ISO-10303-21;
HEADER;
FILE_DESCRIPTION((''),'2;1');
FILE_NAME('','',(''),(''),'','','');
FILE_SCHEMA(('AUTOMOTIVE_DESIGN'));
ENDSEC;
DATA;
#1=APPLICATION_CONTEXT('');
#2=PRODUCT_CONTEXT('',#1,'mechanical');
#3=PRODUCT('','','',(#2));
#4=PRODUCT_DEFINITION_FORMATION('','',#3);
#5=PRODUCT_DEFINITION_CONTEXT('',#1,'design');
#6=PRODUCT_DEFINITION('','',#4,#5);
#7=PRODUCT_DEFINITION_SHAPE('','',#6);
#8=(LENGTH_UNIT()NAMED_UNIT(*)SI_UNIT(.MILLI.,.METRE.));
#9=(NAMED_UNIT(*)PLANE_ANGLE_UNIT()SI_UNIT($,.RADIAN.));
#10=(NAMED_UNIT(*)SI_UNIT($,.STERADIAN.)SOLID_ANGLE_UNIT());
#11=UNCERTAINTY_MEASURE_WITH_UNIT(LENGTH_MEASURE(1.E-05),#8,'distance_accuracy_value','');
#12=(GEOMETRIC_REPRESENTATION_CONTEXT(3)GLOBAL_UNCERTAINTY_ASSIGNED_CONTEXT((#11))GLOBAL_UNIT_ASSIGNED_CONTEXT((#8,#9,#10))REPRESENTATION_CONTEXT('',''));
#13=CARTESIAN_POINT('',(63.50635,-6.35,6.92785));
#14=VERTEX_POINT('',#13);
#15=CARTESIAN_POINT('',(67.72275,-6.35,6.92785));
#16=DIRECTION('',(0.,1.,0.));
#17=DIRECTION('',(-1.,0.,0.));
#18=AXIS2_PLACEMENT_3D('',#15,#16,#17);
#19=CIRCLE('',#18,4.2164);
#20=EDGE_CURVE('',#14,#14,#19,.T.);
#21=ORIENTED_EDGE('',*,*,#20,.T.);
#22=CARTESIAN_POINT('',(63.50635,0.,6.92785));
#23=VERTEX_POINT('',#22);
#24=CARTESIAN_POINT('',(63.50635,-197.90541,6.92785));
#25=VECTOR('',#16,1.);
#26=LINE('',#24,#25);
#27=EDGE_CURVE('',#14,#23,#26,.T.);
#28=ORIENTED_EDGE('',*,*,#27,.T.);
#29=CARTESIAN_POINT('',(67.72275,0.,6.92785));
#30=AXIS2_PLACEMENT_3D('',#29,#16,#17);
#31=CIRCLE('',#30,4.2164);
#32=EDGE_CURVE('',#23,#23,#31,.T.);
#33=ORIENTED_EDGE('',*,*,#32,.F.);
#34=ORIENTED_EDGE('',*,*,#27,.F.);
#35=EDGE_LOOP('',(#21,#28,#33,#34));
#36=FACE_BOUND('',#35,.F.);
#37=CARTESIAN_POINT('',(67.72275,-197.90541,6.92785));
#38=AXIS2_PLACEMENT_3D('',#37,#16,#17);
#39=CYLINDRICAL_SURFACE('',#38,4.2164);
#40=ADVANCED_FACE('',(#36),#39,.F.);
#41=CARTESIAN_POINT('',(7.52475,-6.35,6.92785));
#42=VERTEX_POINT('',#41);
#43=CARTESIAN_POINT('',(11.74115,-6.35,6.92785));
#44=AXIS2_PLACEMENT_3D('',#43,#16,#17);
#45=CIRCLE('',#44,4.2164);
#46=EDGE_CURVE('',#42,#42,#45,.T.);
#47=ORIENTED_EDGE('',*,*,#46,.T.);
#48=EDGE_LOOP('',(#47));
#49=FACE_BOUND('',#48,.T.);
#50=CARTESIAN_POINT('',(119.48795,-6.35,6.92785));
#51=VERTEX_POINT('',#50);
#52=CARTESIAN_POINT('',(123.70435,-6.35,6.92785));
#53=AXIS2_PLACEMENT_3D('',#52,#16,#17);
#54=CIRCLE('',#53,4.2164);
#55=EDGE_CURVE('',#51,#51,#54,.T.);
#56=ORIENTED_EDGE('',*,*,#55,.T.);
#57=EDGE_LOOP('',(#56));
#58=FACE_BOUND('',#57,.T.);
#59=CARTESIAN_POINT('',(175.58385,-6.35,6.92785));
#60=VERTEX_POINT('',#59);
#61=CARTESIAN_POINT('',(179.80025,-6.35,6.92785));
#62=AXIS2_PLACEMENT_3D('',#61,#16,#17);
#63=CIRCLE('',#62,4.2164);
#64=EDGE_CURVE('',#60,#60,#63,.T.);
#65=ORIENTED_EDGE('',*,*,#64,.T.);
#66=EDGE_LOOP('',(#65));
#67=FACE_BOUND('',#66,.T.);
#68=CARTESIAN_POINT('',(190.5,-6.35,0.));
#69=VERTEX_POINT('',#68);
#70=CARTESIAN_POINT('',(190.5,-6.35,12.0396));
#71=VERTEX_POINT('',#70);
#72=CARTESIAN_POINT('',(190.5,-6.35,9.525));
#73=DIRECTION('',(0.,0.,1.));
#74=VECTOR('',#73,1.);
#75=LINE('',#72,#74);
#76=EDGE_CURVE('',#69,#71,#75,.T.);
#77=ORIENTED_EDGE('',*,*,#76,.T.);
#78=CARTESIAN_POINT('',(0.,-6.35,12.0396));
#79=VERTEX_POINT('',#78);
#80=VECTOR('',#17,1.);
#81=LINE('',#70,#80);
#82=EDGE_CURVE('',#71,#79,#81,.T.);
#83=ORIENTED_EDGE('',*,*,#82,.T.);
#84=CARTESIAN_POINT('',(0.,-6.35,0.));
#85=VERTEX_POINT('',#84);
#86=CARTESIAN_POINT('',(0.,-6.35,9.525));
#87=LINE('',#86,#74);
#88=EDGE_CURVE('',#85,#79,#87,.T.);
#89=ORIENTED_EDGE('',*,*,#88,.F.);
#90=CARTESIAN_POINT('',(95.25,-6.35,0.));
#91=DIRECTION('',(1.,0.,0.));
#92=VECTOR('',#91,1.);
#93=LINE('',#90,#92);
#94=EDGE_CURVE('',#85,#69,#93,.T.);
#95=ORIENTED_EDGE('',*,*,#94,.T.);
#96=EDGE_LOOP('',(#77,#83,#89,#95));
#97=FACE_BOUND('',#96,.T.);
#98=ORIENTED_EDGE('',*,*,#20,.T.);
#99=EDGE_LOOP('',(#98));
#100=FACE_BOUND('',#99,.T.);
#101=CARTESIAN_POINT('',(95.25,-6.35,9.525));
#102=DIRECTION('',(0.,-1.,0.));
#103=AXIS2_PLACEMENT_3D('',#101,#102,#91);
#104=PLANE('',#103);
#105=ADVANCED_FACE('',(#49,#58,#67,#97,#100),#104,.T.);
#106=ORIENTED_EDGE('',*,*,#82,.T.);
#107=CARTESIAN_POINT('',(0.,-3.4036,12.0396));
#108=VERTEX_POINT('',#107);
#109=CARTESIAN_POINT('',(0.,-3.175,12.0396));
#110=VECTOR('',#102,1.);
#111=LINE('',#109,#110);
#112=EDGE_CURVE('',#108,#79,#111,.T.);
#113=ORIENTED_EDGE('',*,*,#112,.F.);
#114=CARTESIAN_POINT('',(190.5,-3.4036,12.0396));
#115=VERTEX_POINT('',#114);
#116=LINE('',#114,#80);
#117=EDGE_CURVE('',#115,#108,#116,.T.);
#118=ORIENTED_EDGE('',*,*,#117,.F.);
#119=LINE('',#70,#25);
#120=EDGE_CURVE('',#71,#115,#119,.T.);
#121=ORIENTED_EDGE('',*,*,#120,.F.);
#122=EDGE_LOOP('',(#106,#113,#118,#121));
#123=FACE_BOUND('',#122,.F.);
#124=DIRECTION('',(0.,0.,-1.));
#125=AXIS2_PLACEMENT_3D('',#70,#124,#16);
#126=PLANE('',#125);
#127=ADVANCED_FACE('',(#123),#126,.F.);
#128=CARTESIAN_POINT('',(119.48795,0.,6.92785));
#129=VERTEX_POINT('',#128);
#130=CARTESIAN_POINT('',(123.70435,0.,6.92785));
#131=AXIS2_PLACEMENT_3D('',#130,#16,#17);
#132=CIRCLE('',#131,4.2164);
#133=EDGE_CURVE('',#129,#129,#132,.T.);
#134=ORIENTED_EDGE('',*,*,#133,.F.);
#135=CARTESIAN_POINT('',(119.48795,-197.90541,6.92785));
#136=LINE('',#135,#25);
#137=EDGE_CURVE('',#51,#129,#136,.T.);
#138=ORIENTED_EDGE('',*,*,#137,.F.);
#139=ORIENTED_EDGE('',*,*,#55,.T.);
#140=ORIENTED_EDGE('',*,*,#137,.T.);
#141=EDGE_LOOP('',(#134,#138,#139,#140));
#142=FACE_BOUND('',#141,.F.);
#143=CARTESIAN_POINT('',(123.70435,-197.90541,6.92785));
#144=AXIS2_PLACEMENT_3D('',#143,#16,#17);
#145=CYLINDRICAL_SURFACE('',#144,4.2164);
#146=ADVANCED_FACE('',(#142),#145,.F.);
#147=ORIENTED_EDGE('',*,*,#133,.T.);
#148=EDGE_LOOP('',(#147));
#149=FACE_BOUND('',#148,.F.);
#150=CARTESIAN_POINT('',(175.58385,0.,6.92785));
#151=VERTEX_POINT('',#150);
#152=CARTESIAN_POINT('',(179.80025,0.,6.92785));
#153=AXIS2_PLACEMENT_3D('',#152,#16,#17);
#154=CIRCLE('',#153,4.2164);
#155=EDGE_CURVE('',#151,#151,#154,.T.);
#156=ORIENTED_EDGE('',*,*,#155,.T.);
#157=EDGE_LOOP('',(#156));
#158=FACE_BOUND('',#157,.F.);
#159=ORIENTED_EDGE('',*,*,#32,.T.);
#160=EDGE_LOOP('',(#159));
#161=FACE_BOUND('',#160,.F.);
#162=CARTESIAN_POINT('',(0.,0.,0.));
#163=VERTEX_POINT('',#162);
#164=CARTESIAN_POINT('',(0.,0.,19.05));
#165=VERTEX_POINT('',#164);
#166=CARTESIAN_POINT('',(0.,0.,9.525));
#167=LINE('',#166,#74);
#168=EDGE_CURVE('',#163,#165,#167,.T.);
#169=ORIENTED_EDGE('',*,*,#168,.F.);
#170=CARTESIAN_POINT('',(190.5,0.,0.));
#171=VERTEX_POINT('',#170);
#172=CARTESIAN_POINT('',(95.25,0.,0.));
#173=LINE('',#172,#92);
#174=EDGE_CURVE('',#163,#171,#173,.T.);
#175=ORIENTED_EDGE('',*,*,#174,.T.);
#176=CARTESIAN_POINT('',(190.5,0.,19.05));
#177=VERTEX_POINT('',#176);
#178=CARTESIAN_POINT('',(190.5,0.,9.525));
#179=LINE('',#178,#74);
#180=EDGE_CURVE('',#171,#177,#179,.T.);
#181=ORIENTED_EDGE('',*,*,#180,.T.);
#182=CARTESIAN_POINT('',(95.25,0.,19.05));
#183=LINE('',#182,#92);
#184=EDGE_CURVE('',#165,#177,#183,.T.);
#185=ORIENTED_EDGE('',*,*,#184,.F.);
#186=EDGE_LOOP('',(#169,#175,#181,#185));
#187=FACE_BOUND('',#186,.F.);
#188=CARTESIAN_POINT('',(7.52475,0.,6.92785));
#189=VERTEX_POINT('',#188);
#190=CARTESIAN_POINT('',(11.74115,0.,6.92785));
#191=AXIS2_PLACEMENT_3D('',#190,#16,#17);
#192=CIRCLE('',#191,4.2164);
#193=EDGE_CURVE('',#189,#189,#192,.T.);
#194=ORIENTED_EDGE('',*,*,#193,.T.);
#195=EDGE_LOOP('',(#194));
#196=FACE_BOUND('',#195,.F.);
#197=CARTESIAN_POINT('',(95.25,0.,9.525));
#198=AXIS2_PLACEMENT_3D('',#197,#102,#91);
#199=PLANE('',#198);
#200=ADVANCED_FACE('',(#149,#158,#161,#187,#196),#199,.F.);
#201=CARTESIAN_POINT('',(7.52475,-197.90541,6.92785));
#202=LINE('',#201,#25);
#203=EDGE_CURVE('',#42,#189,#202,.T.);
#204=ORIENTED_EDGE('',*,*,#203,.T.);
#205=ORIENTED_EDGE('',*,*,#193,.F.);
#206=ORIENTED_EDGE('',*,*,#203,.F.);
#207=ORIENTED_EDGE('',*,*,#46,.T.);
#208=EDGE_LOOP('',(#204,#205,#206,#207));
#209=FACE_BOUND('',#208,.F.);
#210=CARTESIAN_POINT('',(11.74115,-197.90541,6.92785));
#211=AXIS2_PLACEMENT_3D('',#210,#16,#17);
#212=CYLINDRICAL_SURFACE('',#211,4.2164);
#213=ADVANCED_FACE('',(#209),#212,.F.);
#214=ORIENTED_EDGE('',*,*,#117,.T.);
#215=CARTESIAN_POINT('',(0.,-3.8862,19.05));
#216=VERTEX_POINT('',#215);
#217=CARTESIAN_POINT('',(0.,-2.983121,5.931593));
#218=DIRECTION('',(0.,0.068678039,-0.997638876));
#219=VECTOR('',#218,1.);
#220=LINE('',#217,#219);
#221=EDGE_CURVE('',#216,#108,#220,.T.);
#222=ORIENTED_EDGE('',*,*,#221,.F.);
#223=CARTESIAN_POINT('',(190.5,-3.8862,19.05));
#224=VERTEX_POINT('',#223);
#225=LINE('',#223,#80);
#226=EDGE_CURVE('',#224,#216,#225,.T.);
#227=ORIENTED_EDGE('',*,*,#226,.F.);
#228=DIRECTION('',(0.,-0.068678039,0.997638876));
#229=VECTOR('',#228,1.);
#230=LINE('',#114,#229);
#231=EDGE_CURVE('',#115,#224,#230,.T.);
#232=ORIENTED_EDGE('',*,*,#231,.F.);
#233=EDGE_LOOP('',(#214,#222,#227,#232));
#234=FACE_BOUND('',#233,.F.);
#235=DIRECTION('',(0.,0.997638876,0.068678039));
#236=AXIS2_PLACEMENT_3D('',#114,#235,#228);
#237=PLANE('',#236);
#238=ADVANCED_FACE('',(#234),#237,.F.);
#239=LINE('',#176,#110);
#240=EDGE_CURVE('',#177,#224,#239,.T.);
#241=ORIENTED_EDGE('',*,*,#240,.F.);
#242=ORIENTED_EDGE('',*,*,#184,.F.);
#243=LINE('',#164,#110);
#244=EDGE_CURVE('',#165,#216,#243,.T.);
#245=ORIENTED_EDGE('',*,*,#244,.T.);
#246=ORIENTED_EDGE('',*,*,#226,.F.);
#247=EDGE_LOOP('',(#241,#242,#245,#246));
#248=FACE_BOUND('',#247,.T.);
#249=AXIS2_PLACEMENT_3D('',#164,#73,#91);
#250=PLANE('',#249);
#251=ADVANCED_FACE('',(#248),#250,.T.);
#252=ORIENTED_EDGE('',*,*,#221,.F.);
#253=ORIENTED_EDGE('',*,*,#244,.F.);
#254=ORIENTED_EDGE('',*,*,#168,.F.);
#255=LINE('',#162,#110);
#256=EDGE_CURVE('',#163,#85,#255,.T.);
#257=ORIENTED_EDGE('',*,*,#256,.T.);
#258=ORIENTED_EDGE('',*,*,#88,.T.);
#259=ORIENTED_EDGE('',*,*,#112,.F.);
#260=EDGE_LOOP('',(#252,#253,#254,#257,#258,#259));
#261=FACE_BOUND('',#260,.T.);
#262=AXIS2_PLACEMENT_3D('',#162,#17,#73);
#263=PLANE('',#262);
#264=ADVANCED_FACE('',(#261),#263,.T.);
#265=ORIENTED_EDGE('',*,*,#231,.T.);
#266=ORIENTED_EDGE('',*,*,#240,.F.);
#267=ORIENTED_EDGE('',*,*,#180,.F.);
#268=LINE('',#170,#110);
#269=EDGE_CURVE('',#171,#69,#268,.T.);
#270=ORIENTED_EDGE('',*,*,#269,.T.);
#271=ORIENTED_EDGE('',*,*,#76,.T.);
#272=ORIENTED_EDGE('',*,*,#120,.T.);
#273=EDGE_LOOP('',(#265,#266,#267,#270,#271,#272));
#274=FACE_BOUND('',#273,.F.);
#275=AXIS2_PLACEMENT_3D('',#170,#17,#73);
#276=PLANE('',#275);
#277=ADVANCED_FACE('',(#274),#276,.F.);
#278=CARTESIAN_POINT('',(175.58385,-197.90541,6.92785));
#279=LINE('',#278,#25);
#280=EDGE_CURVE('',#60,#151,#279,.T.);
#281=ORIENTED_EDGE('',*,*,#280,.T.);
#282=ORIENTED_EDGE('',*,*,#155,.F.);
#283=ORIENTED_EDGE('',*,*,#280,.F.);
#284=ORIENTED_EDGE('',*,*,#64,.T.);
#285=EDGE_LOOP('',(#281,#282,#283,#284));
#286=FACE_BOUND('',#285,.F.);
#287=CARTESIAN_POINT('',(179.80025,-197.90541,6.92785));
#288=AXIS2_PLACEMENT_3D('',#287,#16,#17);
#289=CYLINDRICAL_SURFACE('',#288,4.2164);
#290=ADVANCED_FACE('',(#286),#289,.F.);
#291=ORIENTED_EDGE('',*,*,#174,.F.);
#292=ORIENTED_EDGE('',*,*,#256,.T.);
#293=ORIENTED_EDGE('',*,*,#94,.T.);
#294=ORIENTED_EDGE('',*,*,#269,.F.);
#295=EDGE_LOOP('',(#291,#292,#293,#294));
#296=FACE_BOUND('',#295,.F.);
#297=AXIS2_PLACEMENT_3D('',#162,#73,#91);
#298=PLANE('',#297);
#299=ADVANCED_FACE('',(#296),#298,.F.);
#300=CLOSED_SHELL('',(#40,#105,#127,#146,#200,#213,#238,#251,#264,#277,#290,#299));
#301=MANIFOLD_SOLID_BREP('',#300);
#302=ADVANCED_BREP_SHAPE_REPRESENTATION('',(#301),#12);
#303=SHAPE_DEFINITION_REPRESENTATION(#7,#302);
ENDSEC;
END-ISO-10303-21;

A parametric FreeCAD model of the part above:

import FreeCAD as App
import Part
import Sketcher

V = App.Vector
Q = App.Units.Quantity


def add_polygon(sketch, points):
    """Adds a closed chain of lines whose ends are joined by coincident constraints."""
    first, n = sketch.GeometryCount, len(points)
    for a, b in zip(points, points[1:] + points[:1]):
        sketch.addGeometry(Part.LineSegment(App.Vector(*a, 0), App.Vector(*b, 0)), False)
    for i in range(n):
        sketch.addConstraint(Sketcher.Constraint("Coincident", first + i, 2, first + (i + 1) % n, 1))

doc = App.newDocument("Part")
params = doc.addObject("Spreadsheet::Sheet", "Params")
for row, (alias, value) in enumerate([
    ("sketch1_width", "7.5 in"),
    ("sketch1_height", "0.75 in"),
    ("pad1_length", "0.25 in"),
    ("sketch2_diameter", "0.332 in"),
    ("hole_diameter", "0.332 in"),
    ("sketch3_width", "0.116 in"),
    ("sketch3_width2", "0.097 in"),
    ("sketch3_height", "0.276 in"),
], start=1):
    params.set(f"A{row}", alias)
    params.set(f"B{row}", "=" + value)
    params.setAlias(f"B{row}", alias)

body = doc.addObject("PartDesign::Body", "Body")

# Sketch on XZ plane
sketch1 = doc.addObject("Sketcher::SketchObject", "Sketch")
body.addObject(sketch1)
sketch1.AttachmentSupport = (doc.XZ_Plane, [""])
sketch1.MapMode = "FlatFace"
add_polygon(sketch1, [(0, 19), (0, 0), (190, 0), (190, 19)])  # lines 0-3
sketch1.addConstraint([
    Sketcher.Constraint("Vertical", 0),
    Sketcher.Constraint("Horizontal", 1),
    Sketcher.Constraint("Vertical", 2),
    Sketcher.Constraint("Horizontal", 3),
    Sketcher.Constraint("Coincident", 0, 2, -1, 1),
    Sketcher.Constraint("DistanceX", 1, 1, 1, 2, Q("7.5 in")),
    Sketcher.Constraint("DistanceY", 0, 2, 0, 1, Q("0.75 in")),
])
sketch1.setExpression("Constraints[9]", "Params.sketch1_width")
sketch1.setExpression("Constraints[10]", "Params.sketch1_height")
pad1 = doc.addObject("PartDesign::Pad", "Pad")
body.addObject(pad1)
pad1.Profile = sketch1
pad1.setExpression("Length", "Params.pad1_length")

# Sketch on XZ plane
sketch2 = doc.addObject("Sketcher::SketchObject", "Sketch001")
body.addObject(sketch2)
sketch2.AttachmentSupport = (doc.XZ_Plane, [""])
sketch2.MapMode = "FlatFace"
sketch2.AttachmentOffset = App.Placement(V(0, 0, 0.25 * 25.4), App.Rotation())
sketch2.addGeometry([
    Part.Circle(V(11.7, 6.9, 0), V(0, 0, 1), 4.2),
    Part.Circle(V(67.7, 6.9, 0), V(0, 0, 1), 4.2),
    Part.Circle(V(123.7, 6.9, 0), V(0, 0, 1), 4.2),
    Part.Circle(V(179.8, 6.9, 0), V(0, 0, 1), 4.2),
], False)
sketch2.addConstraint([
    Sketcher.Constraint("Equal", 0, 1),
    Sketcher.Constraint("Equal", 1, 2),
    Sketcher.Constraint("Equal", 2, 3),
    Sketcher.Constraint("Horizontal", 0, 3, 1, 3),
    Sketcher.Constraint("Horizontal", 1, 3, 2, 3),
    Sketcher.Constraint("Horizontal", 2, 3, 3, 3),
    Sketcher.Constraint("Diameter", 0, Q("0.332 in")),
    Sketcher.Constraint("DistanceX", 0, 3, 1, 3, Q("2.204 in")),
    Sketcher.Constraint("DistanceX", 1, 3, 2, 3, Q("2.204 in")),
    Sketcher.Constraint("DistanceX", 2, 3, 3, 3, Q("2.2085 in")),
    Sketcher.Constraint("DistanceX", -1, 1, 0, 3, Q("11.74115 mm")),
    Sketcher.Constraint("DistanceY", -1, 1, 0, 3, Q("6.92785 mm")),
])
sketch2.setExpression("Constraints[6]", "Params.sketch2_diameter")
doc.recompute()
hole = doc.addObject("PartDesign::Hole", "Hole")
body.addObject(hole)
hole.Profile = sketch2
hole.ThreadType = "None"
hole.setExpression("Diameter", "Params.hole_diameter")
hole.DepthType = "ThroughAll"

# Sketch on YZ plane
sketch3 = doc.addObject("Sketcher::SketchObject", "Sketch002")
body.addObject(sketch3)
sketch3.AttachmentSupport = (doc.YZ_Plane, [""])
sketch3.MapMode = "FlatFace"
sketch3.AttachmentOffset = App.Placement(V(0, 0, 7.5 * 25.4), App.Rotation())
add_polygon(sketch3, [(-6.3, 19.1), (-6.3, 12), (-3.4, 12), (-3.9, 19.1)])  # lines 0-3
sketch3.addConstraint([
    Sketcher.Constraint("Vertical", 0),
    Sketcher.Constraint("Horizontal", 1),
    Sketcher.Constraint("Horizontal", 3),
    Sketcher.Constraint("DistanceX", 1, 1, 1, 2, Q("0.116 in")),
    Sketcher.Constraint("DistanceX", 3, 2, 3, 1, Q("0.097 in")),
    Sketcher.Constraint("DistanceY", 0, 2, 0, 1, Q("0.276 in")),
    Sketcher.Constraint("DistanceX", 0, 2, -1, 1, Q("0.25 in")),
    Sketcher.Constraint("DistanceY", -1, 1, 2, 2, Q("0.75 in")),
])
sketch3.setExpression("Constraints[7]", "Params.sketch3_width")
sketch3.setExpression("Constraints[8]", "Params.sketch3_width2")
sketch3.setExpression("Constraints[9]", "Params.sketch3_height")
pocket1 = doc.addObject("PartDesign::Pocket", "Pocket")
body.addObject(pocket1)
pocket1.Profile = sketch3
pocket1.Type = "ThroughAll"

doc.recompute()
